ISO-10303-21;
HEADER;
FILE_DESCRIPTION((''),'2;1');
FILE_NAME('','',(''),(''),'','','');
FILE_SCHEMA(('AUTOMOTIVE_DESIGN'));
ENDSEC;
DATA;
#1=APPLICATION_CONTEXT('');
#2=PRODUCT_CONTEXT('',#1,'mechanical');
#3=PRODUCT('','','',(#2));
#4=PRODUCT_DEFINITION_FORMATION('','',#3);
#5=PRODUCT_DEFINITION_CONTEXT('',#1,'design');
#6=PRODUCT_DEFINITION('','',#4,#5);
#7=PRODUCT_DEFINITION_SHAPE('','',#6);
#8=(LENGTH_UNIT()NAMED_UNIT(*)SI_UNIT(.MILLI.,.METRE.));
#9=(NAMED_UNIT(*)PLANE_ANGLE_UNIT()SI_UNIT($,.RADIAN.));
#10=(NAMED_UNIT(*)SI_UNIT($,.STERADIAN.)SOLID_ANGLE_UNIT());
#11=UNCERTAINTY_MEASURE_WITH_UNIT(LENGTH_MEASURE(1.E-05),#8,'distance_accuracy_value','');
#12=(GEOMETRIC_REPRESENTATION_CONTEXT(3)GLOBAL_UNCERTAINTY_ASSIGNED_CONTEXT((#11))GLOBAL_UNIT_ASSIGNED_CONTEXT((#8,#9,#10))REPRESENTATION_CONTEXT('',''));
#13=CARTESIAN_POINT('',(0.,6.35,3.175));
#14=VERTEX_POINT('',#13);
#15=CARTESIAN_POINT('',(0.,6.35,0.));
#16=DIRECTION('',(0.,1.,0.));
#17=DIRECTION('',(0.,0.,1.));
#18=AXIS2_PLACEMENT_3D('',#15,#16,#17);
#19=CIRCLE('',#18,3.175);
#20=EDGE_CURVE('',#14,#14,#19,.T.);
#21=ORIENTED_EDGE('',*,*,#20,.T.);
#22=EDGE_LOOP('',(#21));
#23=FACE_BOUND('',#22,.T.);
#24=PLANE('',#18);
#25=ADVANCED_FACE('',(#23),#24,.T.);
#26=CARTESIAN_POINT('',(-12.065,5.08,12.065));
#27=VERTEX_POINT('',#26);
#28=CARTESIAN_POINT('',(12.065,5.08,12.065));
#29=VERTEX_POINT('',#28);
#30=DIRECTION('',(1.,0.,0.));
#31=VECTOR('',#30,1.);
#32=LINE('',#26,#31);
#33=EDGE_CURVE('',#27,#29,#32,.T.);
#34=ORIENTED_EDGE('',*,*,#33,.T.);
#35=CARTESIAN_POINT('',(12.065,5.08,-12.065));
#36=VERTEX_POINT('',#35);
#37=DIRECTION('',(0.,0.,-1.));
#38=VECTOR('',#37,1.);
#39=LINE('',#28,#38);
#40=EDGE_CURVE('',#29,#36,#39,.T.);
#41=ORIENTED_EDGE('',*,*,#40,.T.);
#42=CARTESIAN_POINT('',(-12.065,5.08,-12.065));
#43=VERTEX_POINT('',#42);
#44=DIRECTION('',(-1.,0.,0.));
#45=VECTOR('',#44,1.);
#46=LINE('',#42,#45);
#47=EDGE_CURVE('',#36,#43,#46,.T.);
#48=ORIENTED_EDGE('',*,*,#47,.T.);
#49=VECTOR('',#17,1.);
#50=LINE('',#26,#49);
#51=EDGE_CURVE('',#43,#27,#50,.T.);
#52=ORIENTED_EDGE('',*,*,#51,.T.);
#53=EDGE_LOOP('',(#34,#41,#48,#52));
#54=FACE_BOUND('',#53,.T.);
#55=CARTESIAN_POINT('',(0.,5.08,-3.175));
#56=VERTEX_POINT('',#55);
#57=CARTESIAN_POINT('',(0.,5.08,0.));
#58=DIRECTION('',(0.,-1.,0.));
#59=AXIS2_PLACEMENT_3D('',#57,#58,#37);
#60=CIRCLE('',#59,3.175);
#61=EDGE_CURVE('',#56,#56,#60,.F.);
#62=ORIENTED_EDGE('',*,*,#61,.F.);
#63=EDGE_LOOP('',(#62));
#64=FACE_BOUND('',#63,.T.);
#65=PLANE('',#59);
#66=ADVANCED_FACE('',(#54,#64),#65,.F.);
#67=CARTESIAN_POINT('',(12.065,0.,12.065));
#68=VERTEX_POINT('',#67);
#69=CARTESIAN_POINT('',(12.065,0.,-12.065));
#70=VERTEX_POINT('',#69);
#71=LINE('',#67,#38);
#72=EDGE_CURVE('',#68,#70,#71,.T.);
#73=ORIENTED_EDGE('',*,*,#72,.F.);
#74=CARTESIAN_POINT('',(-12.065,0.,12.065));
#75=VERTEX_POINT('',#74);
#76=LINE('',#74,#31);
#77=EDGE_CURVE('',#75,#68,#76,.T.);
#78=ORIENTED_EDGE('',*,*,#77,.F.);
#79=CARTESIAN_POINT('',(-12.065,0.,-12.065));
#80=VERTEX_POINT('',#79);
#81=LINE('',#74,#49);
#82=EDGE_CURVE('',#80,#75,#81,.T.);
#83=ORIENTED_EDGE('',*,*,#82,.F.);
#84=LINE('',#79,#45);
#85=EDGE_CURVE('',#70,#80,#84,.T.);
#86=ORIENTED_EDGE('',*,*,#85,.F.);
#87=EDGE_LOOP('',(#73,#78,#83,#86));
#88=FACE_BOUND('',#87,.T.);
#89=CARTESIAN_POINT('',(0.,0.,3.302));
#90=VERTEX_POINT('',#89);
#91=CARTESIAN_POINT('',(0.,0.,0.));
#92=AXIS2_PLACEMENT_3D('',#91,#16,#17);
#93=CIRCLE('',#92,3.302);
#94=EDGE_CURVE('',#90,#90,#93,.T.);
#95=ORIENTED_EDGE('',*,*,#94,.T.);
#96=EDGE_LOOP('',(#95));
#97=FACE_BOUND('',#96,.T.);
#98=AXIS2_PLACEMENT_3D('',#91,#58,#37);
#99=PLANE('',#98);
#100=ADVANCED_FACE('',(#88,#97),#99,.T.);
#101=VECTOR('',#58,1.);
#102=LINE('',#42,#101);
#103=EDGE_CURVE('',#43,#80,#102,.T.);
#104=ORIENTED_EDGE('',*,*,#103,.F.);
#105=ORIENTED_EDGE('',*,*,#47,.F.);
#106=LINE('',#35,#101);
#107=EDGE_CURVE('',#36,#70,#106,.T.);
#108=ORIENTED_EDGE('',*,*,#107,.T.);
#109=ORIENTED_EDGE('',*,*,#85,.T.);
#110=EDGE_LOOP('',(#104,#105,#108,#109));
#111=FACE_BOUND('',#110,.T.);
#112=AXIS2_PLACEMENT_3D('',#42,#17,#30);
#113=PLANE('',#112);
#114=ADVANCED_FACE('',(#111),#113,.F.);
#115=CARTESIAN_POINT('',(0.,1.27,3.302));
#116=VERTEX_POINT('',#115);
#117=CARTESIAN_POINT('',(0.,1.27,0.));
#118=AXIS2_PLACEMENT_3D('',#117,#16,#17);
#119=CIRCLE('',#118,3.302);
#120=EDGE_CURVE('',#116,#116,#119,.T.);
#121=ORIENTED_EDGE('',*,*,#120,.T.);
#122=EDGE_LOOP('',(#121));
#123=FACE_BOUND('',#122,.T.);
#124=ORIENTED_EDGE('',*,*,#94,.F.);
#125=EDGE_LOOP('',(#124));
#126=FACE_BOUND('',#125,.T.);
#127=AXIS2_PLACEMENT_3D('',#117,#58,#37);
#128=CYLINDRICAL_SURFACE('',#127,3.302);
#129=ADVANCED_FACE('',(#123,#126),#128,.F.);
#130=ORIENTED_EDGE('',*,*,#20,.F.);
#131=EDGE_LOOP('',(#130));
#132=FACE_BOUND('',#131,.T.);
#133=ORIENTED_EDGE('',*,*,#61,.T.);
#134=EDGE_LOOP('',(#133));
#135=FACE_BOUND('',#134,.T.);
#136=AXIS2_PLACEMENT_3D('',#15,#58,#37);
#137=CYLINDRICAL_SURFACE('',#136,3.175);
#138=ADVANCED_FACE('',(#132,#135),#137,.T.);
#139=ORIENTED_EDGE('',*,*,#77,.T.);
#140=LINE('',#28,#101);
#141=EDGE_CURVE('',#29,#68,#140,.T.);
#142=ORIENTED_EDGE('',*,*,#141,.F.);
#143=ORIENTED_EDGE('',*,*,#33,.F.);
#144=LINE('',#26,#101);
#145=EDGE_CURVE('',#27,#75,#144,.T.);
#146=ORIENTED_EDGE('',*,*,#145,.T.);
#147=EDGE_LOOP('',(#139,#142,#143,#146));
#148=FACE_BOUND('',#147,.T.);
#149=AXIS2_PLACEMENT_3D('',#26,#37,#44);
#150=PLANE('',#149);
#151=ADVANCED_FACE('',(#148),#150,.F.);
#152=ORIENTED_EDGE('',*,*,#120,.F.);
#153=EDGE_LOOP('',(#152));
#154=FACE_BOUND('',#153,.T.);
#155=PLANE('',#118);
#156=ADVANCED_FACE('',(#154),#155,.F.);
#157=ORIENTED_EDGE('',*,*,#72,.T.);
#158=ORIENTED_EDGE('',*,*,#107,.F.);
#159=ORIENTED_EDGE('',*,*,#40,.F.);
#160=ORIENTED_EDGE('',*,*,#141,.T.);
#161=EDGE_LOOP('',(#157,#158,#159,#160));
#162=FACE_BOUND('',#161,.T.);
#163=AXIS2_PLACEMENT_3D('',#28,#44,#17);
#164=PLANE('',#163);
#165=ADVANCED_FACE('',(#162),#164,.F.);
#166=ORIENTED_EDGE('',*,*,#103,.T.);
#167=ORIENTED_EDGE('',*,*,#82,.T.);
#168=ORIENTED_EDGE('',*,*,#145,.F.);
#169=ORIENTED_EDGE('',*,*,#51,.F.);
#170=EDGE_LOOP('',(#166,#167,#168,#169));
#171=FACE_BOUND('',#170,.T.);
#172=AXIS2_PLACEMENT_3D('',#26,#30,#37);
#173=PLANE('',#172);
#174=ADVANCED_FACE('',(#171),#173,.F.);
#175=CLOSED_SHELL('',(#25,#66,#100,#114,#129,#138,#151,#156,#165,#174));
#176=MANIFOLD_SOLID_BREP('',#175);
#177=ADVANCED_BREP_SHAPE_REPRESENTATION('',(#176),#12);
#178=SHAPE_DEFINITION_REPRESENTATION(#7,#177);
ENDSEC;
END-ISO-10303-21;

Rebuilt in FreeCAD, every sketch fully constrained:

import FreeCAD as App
import Part
import Sketcher
from FreeCAD import Vector
Q = App.Units.Quantity

doc = App.newDocument("Part")
body = doc.addObject("PartDesign::Body", "Body")

# Sketch on XZ plane
sketch1 = doc.addObject("Sketcher::SketchObject", "Sketch")
body.addObject(sketch1)
sketch1.AttachmentSupport = (doc.XZ_Plane, [""])
sketch1.MapMode = "FlatFace"
sketch1.addGeometry([
    Part.LineSegment(Vector(-12, -12, 0), Vector(-12, 12, 0)),
    Part.LineSegment(Vector(-12, 12, 0), Vector(12, 12, 0)),
    Part.LineSegment(Vector(12, 12, 0), Vector(12, -12, 0)),
    Part.LineSegment(Vector(12, -12, 0), Vector(-12, -12, 0)),
], False)
sketch1.addConstraint([
    Sketcher.Constraint("Coincident", 0, 2, 1, 1),
    Sketcher.Constraint("Coincident", 1, 2, 2, 1),
    Sketcher.Constraint("Coincident", 2, 2, 3, 1),
    Sketcher.Constraint("Coincident", 3, 2, 0, 1),
    Sketcher.Constraint("Vertical", 0),
    Sketcher.Constraint("Horizontal", 1),
    Sketcher.Constraint("Vertical", 2),
    Sketcher.Constraint("Horizontal", 3),
    Sketcher.Constraint("Symmetric", 0, 2, 2, 2, -1, 1),
    Sketcher.Constraint("Equal", 3, 0),
    Sketcher.Constraint("DistanceX", 1, 1, 1, 2, Q("0.95 in")),
])
pad1 = doc.addObject("PartDesign::Pad", "Pad")
body.addObject(pad1)
pad1.Profile = sketch1
pad1.Length = Q("0.2 in")
pad1.Reversed = True

# Sketch on XZ plane
sketch2 = doc.addObject("Sketcher::SketchObject", "Sketch001")
body.addObject(sketch2)
sketch2.AttachmentSupport = (doc.XZ_Plane, [""])
sketch2.MapMode = "FlatFace"
sketch2.addGeometry(Part.Circle(Vector(0, 0, 0), Vector(0, 0, 1), 3.3), False)
sketch2.addConstraint([
    Sketcher.Constraint("Coincident", 0, 3, -1, 1),
    Sketcher.Constraint("Diameter", 0, Q("0.26 in")),
])
pocket1 = doc.addObject("PartDesign::Pocket", "Pocket")
body.addObject(pocket1)
pocket1.Profile = sketch2
pocket1.Length = Q("0.05 in")

# Sketch on XZ plane
sketch3 = doc.addObject("Sketcher::SketchObject", "Sketch002")
body.addObject(sketch3)
sketch3.AttachmentSupport = (doc.XZ_Plane, [""])
sketch3.MapMode = "FlatFace"
sketch3.AttachmentOffset = App.Placement(Vector(0, 0, -0.2 * 25.4), App.Rotation())
sketch3.addGeometry(Part.Circle(Vector(0, 0, 0), Vector(0, 0, 1), 3.2), False)
sketch3.addConstraint([
    Sketcher.Constraint("Coincident", 0, 3, -1, 1),
    Sketcher.Constraint("Diameter", 0, Q("0.25 in")),
])
pad2 = doc.addObject("PartDesign::Pad", "Pad001")
body.addObject(pad2)
pad2.Profile = sketch3
pad2.Length = Q("0.05 in")
pad2.Reversed = True

doc.recompute()
